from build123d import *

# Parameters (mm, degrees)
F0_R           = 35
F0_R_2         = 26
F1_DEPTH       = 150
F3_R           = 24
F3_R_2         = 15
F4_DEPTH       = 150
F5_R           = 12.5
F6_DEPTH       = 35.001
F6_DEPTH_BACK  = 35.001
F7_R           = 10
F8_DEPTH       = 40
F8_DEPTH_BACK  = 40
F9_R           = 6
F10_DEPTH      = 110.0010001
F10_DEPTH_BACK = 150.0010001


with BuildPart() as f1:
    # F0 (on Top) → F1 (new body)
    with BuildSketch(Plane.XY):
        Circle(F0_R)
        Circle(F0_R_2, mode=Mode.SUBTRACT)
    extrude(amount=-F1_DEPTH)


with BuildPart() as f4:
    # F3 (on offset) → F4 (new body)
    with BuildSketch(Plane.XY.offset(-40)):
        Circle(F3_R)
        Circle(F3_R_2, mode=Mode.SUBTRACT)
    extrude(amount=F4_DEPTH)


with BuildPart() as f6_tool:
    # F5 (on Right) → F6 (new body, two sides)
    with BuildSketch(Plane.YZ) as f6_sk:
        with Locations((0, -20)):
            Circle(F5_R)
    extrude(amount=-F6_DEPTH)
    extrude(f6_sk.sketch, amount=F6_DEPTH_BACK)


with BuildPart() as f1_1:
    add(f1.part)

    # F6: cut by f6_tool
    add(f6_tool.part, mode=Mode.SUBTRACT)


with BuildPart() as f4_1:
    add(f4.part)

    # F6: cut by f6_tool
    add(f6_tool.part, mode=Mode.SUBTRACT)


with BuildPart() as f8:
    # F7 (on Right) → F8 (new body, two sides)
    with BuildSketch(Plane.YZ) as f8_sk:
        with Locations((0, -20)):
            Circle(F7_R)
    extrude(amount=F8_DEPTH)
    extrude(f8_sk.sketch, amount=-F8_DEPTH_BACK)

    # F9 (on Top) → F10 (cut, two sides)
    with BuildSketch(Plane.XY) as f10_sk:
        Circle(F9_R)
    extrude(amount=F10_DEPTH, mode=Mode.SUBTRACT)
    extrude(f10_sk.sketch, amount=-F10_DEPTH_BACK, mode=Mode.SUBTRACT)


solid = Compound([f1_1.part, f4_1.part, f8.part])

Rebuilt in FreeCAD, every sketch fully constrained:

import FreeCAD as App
import Part
import Sketcher
Q = App.Units.Quantity

doc = App.newDocument("Part")
body = doc.addObject("PartDesign::Body", "Body")

# Sketch on XY plane
sketch1 = body.newObject("Sketcher::SketchObject", "Sketch")
sketch1.AttachmentSupport = (doc.getObject("XY_Plane"), [""])
sketch1.MapMode = "FlatFace"
sketch1.addGeometry([
    Part.Circle(App.Vector(0, 0, 0), App.Vector(0, 0, 1), 35),
    Part.Circle(App.Vector(0, 0, 0), App.Vector(0, 0, 1), 26),
], False)
sketch1.addConstraint([
    Sketcher.Constraint("Coincident", 0, 3, -1, 1),
    Sketcher.Constraint("Coincident", 1, 3, -1, 1),
    Sketcher.Constraint("Diameter", 0, Q("70 mm")),
    Sketcher.Constraint("Diameter", 1, Q("52 mm")),
])
pad1 = body.newObject("PartDesign::Pad", "Pad")
pad1.Profile = sketch1
pad1.Length = 150
pad1.Reversed = True
body2 = doc.addObject("PartDesign::Body", "Body001")

# Sketch on XY plane
sketch2 = body2.newObject("Sketcher::SketchObject", "Sketch001")
sketch2.AttachmentSupport = (doc.getObject("XY_Plane001"), [""])
sketch2.MapMode = "FlatFace"
sketch2.AttachmentOffset = App.Placement(App.Vector(0, 0, -40), App.Rotation())
sketch2.addGeometry([
    Part.Circle(App.Vector(0, 0, 0), App.Vector(0, 0, 1), 24),
    Part.Circle(App.Vector(0, 0, 0), App.Vector(0, 0, 1), 15),
], False)
sketch2.addConstraint([
    Sketcher.Constraint("Coincident", 0, 3, -1, 1),
    Sketcher.Constraint("Coincident", 1, 3, -1, 1),
    Sketcher.Constraint("Diameter", 0, Q("48 mm")),
    Sketcher.Constraint("Diameter", 1, Q("30 mm")),
])
pad2 = body2.newObject("PartDesign::Pad", "Pad001")
pad2.Profile = sketch2
pad2.Length = 150
body3 = doc.addObject("PartDesign::Body", "Body002")

# Sketch on YZ plane
sketch3 = body3.newObject("Sketcher::SketchObject", "Sketch002")
sketch3.AttachmentSupport = (doc.getObject("YZ_Plane002"), [""])
sketch3.MapMode = "FlatFace"
sketch3.addGeometry(Part.Circle(App.Vector(0, -20, 0), App.Vector(0, 0, 1), 12.5), False)
sketch3.addConstraint([
    Sketcher.Constraint("PointOnObject", 0, 3, -2),
    Sketcher.Constraint("Diameter", 0, Q("25 mm")),
    Sketcher.Constraint("DistanceY", 0, 3, -1, 1, Q("20 mm")),
])
pad3 = body3.newObject("PartDesign::Pad", "Pad002")
pad3.Profile = sketch3
pad3.Type = "TwoLengths"
pad3.Length = 35.001
pad3.Length2 = 35.001
pad3.Reversed = True
doc.recompute()

body4 = doc.addObject("PartDesign::Body", "Body003")
body4.BaseFeature = body3
boolean = body.newObject("PartDesign::Boolean", "Boolean")
boolean.Type = "Cut"
boolean.addObjects([body4])
doc.recompute()

boolean2 = body2.newObject("PartDesign::Boolean", "Boolean001")
boolean2.Type = "Cut"
boolean2.addObjects([body3])
body5 = doc.addObject("PartDesign::Body", "Body004")

# Sketch on YZ plane
sketch4 = body5.newObject("Sketcher::SketchObject", "Sketch003")
sketch4.AttachmentSupport = (doc.getObject("YZ_Plane004"), [""])
sketch4.MapMode = "FlatFace"
sketch4.addGeometry(Part.Circle(App.Vector(0, -20, 0), App.Vector(0, 0, 1), 10), False)
sketch4.addConstraint([
    Sketcher.Constraint("PointOnObject", 0, 3, -2),
    Sketcher.Constraint("Diameter", 0, Q("20 mm")),
    Sketcher.Constraint("DistanceY", 0, 3, -1, 1, Q("20 mm")),
])
pad4 = body5.newObject("PartDesign::Pad", "Pad003")
pad4.Profile = sketch4
pad4.Type = "TwoLengths"
pad4.Length = 40
pad4.Length2 = 40

# Sketch on XY plane
sketch5 = body5.newObject("Sketcher::SketchObject", "Sketch004")
sketch5.AttachmentSupport = (doc.getObject("XY_Plane004"), [""])
sketch5.MapMode = "FlatFace"
sketch5.addGeometry(Part.Circle(App.Vector(0, 0, 0), App.Vector(0, 0, 1), 6), False)
sketch5.addConstraint([
    Sketcher.Constraint("Coincident", 0, 3, -1, 1),
    Sketcher.Constraint("Diameter", 0, Q("12 mm")),
])
pocket1 = body5.newObject("PartDesign::Pocket", "Pocket")
pocket1.Profile = sketch5
pocket1.Type = "ThroughAll"
pocket1.Midplane = True

doc.recompute()
